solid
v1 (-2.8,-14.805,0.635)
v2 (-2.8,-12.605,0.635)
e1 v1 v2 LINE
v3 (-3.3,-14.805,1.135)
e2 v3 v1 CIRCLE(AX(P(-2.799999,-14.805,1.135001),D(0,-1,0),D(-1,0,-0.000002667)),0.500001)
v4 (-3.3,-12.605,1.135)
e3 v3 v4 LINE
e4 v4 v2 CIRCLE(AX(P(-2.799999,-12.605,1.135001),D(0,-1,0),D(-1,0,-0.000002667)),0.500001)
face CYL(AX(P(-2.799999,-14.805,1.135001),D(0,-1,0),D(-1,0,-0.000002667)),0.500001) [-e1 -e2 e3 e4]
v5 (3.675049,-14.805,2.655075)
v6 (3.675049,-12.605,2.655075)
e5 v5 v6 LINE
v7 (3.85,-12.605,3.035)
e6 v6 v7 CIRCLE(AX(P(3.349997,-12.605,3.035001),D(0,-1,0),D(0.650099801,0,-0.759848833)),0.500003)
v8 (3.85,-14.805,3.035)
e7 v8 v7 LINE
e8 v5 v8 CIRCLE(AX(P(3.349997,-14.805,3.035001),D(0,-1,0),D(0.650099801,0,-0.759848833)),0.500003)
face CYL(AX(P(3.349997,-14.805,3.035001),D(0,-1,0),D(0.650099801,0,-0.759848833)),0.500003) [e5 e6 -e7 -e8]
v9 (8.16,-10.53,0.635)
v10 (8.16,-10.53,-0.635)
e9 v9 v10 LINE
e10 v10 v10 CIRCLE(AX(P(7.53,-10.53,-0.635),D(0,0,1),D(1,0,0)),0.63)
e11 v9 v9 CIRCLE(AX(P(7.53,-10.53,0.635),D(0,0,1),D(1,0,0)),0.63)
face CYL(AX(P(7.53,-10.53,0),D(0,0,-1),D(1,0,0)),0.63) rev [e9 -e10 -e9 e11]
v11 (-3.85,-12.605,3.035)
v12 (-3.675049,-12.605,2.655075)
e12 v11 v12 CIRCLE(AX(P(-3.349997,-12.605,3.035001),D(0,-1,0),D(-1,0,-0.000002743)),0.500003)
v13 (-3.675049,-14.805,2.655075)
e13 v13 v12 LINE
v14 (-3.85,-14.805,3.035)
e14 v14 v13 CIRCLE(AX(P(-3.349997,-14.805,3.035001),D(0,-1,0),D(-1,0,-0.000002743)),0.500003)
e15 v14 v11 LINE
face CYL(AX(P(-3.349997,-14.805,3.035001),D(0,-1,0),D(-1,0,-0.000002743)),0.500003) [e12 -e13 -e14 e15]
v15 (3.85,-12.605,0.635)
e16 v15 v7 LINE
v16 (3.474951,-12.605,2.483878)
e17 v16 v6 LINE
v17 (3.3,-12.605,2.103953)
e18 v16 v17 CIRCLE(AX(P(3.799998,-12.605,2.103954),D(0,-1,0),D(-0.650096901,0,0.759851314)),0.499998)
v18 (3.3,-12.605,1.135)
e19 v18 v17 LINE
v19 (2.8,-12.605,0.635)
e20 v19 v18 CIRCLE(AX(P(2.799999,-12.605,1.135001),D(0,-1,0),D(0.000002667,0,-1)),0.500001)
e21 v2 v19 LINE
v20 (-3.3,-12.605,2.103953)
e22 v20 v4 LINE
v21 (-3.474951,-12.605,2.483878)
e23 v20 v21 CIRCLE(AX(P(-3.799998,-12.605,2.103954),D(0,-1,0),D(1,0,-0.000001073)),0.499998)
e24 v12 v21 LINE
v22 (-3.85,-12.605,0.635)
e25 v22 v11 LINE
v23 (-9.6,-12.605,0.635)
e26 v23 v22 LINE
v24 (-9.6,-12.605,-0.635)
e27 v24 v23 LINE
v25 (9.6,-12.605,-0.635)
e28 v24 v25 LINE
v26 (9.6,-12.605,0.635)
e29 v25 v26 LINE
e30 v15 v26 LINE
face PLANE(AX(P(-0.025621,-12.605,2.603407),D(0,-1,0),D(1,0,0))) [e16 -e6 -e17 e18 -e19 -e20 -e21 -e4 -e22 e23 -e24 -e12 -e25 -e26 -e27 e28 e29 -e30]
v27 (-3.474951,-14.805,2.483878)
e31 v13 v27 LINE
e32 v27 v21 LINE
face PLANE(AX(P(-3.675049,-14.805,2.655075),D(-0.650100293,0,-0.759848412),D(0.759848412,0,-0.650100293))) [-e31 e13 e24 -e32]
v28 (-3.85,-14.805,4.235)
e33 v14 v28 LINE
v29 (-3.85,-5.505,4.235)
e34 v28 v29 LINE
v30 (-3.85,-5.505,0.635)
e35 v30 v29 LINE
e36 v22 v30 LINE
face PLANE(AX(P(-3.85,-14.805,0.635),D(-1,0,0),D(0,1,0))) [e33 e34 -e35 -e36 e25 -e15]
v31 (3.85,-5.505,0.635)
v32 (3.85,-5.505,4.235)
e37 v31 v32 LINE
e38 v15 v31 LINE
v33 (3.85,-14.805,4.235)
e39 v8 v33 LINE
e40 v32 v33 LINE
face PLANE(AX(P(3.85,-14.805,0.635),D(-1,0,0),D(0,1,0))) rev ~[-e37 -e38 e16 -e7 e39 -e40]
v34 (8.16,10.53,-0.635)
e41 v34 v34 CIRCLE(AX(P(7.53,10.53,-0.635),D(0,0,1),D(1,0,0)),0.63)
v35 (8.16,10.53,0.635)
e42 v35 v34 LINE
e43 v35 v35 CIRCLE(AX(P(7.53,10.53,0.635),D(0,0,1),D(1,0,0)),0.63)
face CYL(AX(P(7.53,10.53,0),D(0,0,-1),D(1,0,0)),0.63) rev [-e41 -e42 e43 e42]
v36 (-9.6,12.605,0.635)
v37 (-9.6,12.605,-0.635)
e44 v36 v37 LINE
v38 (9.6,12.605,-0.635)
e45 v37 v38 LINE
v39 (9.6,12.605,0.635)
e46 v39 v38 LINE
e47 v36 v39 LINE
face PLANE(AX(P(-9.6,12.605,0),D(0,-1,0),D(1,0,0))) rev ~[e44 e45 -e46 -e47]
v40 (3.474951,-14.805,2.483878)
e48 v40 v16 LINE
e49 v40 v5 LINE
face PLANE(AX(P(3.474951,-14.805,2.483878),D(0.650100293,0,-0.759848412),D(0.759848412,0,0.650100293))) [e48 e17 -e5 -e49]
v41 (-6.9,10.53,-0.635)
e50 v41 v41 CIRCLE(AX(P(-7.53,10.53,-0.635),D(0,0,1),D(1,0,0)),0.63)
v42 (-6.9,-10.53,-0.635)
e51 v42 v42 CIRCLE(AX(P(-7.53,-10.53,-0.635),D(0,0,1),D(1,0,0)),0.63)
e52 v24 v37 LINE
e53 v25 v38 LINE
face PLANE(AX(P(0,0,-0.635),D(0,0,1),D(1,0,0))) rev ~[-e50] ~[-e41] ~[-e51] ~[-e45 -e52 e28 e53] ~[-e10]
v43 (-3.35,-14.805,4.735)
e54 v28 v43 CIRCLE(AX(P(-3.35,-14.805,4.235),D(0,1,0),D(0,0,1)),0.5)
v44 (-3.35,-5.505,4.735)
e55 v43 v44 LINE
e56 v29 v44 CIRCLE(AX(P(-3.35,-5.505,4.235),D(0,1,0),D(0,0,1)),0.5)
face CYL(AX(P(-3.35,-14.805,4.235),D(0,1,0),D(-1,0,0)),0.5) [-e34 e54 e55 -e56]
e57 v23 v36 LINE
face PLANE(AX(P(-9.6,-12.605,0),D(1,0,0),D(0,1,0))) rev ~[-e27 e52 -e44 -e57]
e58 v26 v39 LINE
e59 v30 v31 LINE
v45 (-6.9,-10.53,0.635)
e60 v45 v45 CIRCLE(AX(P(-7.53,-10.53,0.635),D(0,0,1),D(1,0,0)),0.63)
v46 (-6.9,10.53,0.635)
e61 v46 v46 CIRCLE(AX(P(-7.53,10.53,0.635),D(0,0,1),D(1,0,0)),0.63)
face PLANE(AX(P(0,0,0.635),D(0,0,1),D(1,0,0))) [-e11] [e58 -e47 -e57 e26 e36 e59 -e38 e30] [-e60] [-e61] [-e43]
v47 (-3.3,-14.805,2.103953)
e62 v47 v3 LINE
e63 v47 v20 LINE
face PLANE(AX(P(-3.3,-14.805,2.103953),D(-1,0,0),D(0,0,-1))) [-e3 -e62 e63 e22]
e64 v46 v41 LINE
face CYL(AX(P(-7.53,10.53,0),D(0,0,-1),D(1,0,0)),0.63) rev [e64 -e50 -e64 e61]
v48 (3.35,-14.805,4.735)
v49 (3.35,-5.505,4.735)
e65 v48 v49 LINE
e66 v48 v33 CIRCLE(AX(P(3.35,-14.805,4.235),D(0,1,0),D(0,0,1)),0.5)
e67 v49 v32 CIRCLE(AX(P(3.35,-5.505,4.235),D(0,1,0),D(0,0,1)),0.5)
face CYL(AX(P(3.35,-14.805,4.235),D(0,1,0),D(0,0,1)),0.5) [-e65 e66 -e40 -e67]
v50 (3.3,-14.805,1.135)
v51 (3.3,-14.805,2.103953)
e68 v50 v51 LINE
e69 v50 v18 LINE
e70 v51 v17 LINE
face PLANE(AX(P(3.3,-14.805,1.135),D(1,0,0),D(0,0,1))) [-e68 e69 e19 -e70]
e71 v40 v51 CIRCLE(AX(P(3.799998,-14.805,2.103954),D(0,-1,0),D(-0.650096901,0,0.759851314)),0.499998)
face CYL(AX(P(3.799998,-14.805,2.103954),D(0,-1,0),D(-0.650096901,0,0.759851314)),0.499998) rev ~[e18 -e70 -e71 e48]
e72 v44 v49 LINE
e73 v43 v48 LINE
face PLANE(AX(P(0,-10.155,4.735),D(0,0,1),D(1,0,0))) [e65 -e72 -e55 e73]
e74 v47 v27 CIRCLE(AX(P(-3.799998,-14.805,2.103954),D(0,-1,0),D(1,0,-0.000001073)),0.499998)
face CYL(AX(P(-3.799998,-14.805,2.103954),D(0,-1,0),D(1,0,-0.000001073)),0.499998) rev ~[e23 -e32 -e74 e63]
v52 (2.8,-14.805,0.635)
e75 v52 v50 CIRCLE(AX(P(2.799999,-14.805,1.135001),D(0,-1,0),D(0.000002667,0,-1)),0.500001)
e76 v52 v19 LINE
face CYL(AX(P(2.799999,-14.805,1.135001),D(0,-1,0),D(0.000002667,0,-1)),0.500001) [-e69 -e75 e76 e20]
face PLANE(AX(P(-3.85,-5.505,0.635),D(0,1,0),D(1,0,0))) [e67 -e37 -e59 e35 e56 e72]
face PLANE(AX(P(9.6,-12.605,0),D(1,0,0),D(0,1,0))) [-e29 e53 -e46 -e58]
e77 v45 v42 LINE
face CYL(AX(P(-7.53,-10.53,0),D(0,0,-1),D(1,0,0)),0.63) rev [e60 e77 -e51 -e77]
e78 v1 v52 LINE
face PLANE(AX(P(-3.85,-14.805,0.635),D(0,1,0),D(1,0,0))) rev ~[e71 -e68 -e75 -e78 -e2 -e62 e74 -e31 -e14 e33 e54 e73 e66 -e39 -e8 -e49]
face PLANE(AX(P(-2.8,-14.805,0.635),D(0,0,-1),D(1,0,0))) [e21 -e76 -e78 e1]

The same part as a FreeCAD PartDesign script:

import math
import FreeCAD as App
import Part
import Sketcher
from FreeCAD import Vector
Q = App.Units.Quantity


def edges_at(feature, points):
    """Names of the edges that pass closest to the given points."""
    edges = feature.Shape.Edges
    near = lambda p: min(range(len(edges)), key=lambda i: edges[i].distToShape(Part.Vertex(*p))[0])
    return sorted({f"Edge{near(p) + 1}" for p in points})


def add_polygon(sketch, points):
    """Adds a closed chain of lines whose ends are joined by coincident constraints."""
    first, n = sketch.GeometryCount, len(points)
    for a, b in zip(points, points[1:] + points[:1]):
        sketch.addGeometry(Part.LineSegment(App.Vector(*a, 0), App.Vector(*b, 0)), False)
    for i in range(n):
        sketch.addConstraint(Sketcher.Constraint("Coincident", first + i, 2, first + (i + 1) % n, 1))

doc = App.newDocument("Part")
params = doc.addObject("Spreadsheet::Sheet", "Params")
for row, (alias, value) in enumerate([
    ("sketch1_diameter", "1.26 mm"),
    ("sketch1_width", "19.2 mm"),
    ("sketch1_height", "25.21 mm"),
    ("pad1_length", "1.27 mm"),
    ("sketch2_width", "7.7 mm"),
    ("sketch2_height", "9.3 mm"),
    ("pad2_length", "4.1 mm"),
    ("fillet_radius", "0.5 mm"),
    ("sketch3_radius", "0.499998 mm"),
    ("sketch3_radius2", "0.500001 mm"),
    ("sketch3_width", "7.7 mm"),
    ("sketch3_width2", "5.6 mm"),
    ("sketch3_height", "1.7 mm"),
    ("pocket1_length", "2.2 mm"),
], start=1):
    params.set(f"A{row}", alias)
    params.set(f"B{row}", "=" + value)
    params.setAlias(f"B{row}", alias)

body = doc.addObject("PartDesign::Body", "Body")

# Sketch on XY plane
sketch1 = doc.addObject("Sketcher::SketchObject", "Sketch")
body.addObject(sketch1)
sketch1.AttachmentSupport = (doc.XY_Plane, [""])
sketch1.MapMode = "FlatFace"
add_polygon(sketch1, [(-9.6, 12.605), (-9.6, -12.605), (9.6, -12.605), (9.6, 12.605)])  # lines 0-3
sketch1.addGeometry(Part.Circle(Vector(-7.53, -10.53, 0), Vector(0, 0, 1), 0.63), False)  # 4
sketch1.addGeometry(Part.Circle(Vector(7.53, -10.53, 0), Vector(0, 0, 1), 0.63), False)  # 5
sketch1.addGeometry(Part.Circle(Vector(-7.53, 10.53, 0), Vector(0, 0, 1), 0.63), False)  # 6
sketch1.addGeometry(Part.Circle(Vector(7.53, 10.53, 0), Vector(0, 0, 1), 0.63), False)  # 7
sketch1.addConstraint([
    Sketcher.Constraint("Vertical", 0),
    Sketcher.Constraint("Horizontal", 1),
    Sketcher.Constraint("Vertical", 2),
    Sketcher.Constraint("Horizontal", 3),
    Sketcher.Constraint("Equal", 4, 5),
    Sketcher.Constraint("Equal", 5, 6),
    Sketcher.Constraint("Equal", 6, 7),
    Sketcher.Constraint("Symmetric", 5, 3, 6, 3, -1, 1),
    Sketcher.Constraint("Symmetric", 4, 3, 7, 3, -1, 1),
    Sketcher.Constraint("Symmetric", 0, 2, 2, 2, -1, 1),
    Sketcher.Constraint("Symmetric", 4, 3, 5, 3, -2),
    Sketcher.Constraint("Diameter", 4, Q("1.26 mm")),
    Sketcher.Constraint("DistanceX", 1, 1, 1, 2, Q("19.2 mm")),
    Sketcher.Constraint("DistanceY", 0, 2, 0, 1, Q("25.21 mm")),
    Sketcher.Constraint("DistanceX", 4, 3, -1, 1, Q("7.53 mm")),
    Sketcher.Constraint("DistanceY", 4, 3, -1, 1, Q("10.53 mm")),
])
sketch1.setExpression("Constraints[15]", "Params.sketch1_diameter")
sketch1.setExpression("Constraints[16]", "Params.sketch1_width")
sketch1.setExpression("Constraints[17]", "Params.sketch1_height")
pad1 = doc.addObject("PartDesign::Pad", "Pad")
body.addObject(pad1)
pad1.Profile = sketch1
pad1.setExpression("Length", "Params.pad1_length")
pad1.Midplane = True

# Sketch on XY plane
sketch2 = doc.addObject("Sketcher::SketchObject", "Sketch001")
body.addObject(sketch2)
sketch2.AttachmentSupport = (doc.XY_Plane, [""])
sketch2.MapMode = "FlatFace"
sketch2.AttachmentOffset = App.Placement(Vector(0, 0, 0.635), App.Rotation())
add_polygon(sketch2, [(-3.85, -5.505), (-3.85, -14.805), (3.85, -14.805), (3.85, -5.505)])  # lines 0-3
sketch2.addConstraint([
    Sketcher.Constraint("Vertical", 0),
    Sketcher.Constraint("Horizontal", 1),
    Sketcher.Constraint("Vertical", 2),
    Sketcher.Constraint("Horizontal", 3),
    Sketcher.Constraint("DistanceX", 1, 1, 1, 2, Q("7.7 mm")),
    Sketcher.Constraint("DistanceY", 0, 2, 0, 1, Q("9.3 mm")),
    Sketcher.Constraint("DistanceX", 0, 2, -1, 1, Q("3.85 mm")),
    Sketcher.Constraint("DistanceY", 0, 2, -1, 1, Q("14.805 mm")),
])
sketch2.setExpression("Constraints[8]", "Params.sketch2_width")
sketch2.setExpression("Constraints[9]", "Params.sketch2_height")
pad2 = doc.addObject("PartDesign::Pad", "Pad001")
body.addObject(pad2)
pad2.Profile = sketch2
pad2.setExpression("Length", "Params.pad2_length")
doc.recompute()

fillet = doc.addObject("PartDesign::Fillet", "Fillet")
body.addObject(fillet)
fillet.Base = (pad2, edges_at(pad2, [(-3.85, -10.155, 4.735), (3.85, -10.155, 4.735)]))
fillet.setExpression("Radius", "Params.fillet_radius")

# Sketch on XZ plane
sketch3 = doc.addObject("Sketcher::SketchObject", "Sketch002")
body.addObject(sketch3)
sketch3.AttachmentSupport = (doc.XZ_Plane, [""])
sketch3.MapMode = "FlatFace"
sketch3.AttachmentOffset = App.Placement(Vector(0, 0, 14.805), App.Rotation())
add_polygon(sketch3, [(-4.301005, 4.990322), (-4.301005, 0.216493), (4.249764, 0.216493), (4.249764, 4.990322)])  # lines 0-3
sketch3.addGeometry(Part.LineSegment(Vector(-3.85, 3.035, 0), Vector(-3.85, 4.735, 0)), False)  # 4
sketch3.addGeometry(Part.LineSegment(Vector(-3.85, 4.735, 0), Vector(3.85, 4.735, 0)), False)  # 5
sketch3.addGeometry(Part.LineSegment(Vector(3.85, 4.735, 0), Vector(3.85, 3.035, 0)), False)  # 6
sketch3.addGeometry(Part.ArcOfCircle(Part.Circle(Vector(3.349997, 3.035001, 0), Vector(0, 0, 1), 0.500003), math.radians(-49.450873), math.radians(-0.000157)), False)  # 7
sketch3.addGeometry(Part.LineSegment(Vector(3.675049, 2.655075, 0), Vector(3.474951, 2.483878, 0)), False)  # 8
sketch3.addGeometry(Part.ArcOfCircle(Part.Circle(Vector(3.799998, 2.103954, 0), Vector(0, 0, 1), 0.499998), math.radians(130.548908), math.radians(180.000062)), False)  # 9
sketch3.addGeometry(Part.LineSegment(Vector(3.3, 2.103953, 0), Vector(3.3, 1.135, 0)), False)  # 10
sketch3.addGeometry(Part.ArcOfCircle(Part.Circle(Vector(2.799999, 1.135001, 0), Vector(0, 0, 1), 0.500001), math.radians(-89.999847), math.radians(-0.000153)), False)  # 11
sketch3.addGeometry(Part.LineSegment(Vector(2.8, 0.635, 0), Vector(-2.8, 0.635, 0)), False)  # 12
sketch3.addGeometry(Part.ArcOfCircle(Part.Circle(Vector(-2.799999, 1.135001, 0), Vector(0, 0, 1), 0.500001), math.radians(-179.999847), math.radians(-90.000153)), False)  # 13
sketch3.addGeometry(Part.LineSegment(Vector(-3.3, 1.135, 0), Vector(-3.3, 2.103953, 0)), False)  # 14
sketch3.addGeometry(Part.ArcOfCircle(Part.Circle(Vector(-3.799998, 2.103954, 0), Vector(0, 0, 1), 0.499998), math.radians(-0.000062), math.radians(49.451092)), False)  # 15
sketch3.addGeometry(Part.LineSegment(Vector(-3.474951, 2.483878, 0), Vector(-3.675049, 2.655075, 0)), False)  # 16
sketch3.addGeometry(Part.ArcOfCircle(Part.Circle(Vector(-3.349997, 3.035001, 0), Vector(0, 0, 1), 0.500003), math.radians(-179.999843), math.radians(-130.549127)), False)  # 17
sketch3.addConstraint([
    Sketcher.Constraint("Coincident", 4, 2, 5, 1),
    Sketcher.Constraint("Coincident", 5, 2, 6, 1),
    Sketcher.Constraint("Coincident", 6, 2, 7, 2),
    Sketcher.Constraint("Tangent", 7, 1, 8, 1),
    Sketcher.Constraint("Coincident", 8, 2, 9, 1),
    Sketcher.Constraint("Tangent", 9, 2, 10, 1),
    Sketcher.Constraint("Coincident", 10, 2, 11, 2),
    Sketcher.Constraint("Coincident", 11, 1, 12, 1),
    Sketcher.Constraint("Coincident", 12, 2, 13, 2),
    Sketcher.Constraint("Coincident", 13, 1, 14, 1),
    Sketcher.Constraint("Tangent", 14, 2, 15, 1),
    Sketcher.Constraint("Coincident", 15, 2, 16, 1),
    Sketcher.Constraint("Tangent", 16, 2, 17, 2),
    Sketcher.Constraint("Coincident", 17, 1, 4, 1),
    Sketcher.Constraint("Vertical", 0),
    Sketcher.Constraint("Horizontal", 1),
    Sketcher.Constraint("Vertical", 2),
    Sketcher.Constraint("Horizontal", 3),
    Sketcher.Constraint("Vertical", 4),
    Sketcher.Constraint("Horizontal", 5),
    Sketcher.Constraint("Vertical", 6),
    Sketcher.Constraint("Vertical", 10),
    Sketcher.Constraint("Horizontal", 12),
    Sketcher.Constraint("Vertical", 14),
    Sketcher.Constraint("Equal", 7, 11),
    Sketcher.Constraint("Equal", 11, 13),
    Sketcher.Constraint("Equal", 9, 15),
    Sketcher.Constraint("Equal", 13, 17),
    Sketcher.Constraint("Symmetric", 9, 3, 15, 3, -2),
    Sketcher.Constraint("Symmetric", 7, 3, 17, 3, -2),
    Sketcher.Constraint("Horizontal", 17, 3, 6, 2),
    Sketcher.Constraint("Horizontal", 13, 3, 10, 2),
    Sketcher.Constraint("Horizontal", 10, 2, 13, 1),
    Sketcher.Constraint("Horizontal", 8, 2, 15, 2),
    Sketcher.Constraint("Horizontal", 6, 2, 17, 1),
    Sketcher.Constraint("Vertical", 13, 3, 12, 2),
    Sketcher.Constraint("Radius", 9, Q("0.499998 mm")),
    Sketcher.Constraint("Radius", 11, Q("0.500001 mm")),
    Sketcher.Constraint("DistanceX", 5, 1, 5, 2, Q("7.7 mm")),
    Sketcher.Constraint("DistanceX", 12, 2, 12, 1, Q("5.6 mm")),
    Sketcher.Constraint("DistanceY", 4, 1, 4, 2, Q("1.7 mm")),
    Sketcher.Constraint("DistanceX", 11, 1, 9, 3, Q("0.999998 mm")),
    Sketcher.Constraint("DistanceY", 11, 3, 7, 3, Q("1.9 mm")),
    Sketcher.Constraint("DistanceY", -1, 1, 7, 3, Q("3.035001 mm")),
    Sketcher.Constraint("DistanceX", 1, 1, 1, 2, Q("8.550769 mm")),
    Sketcher.Constraint("DistanceY", 0, 2, 0, 1, Q("4.773829 mm")),
    Sketcher.Constraint("DistanceX", 16, 2, 15, 2, Q("0.200098 mm")),
    Sketcher.Constraint("Distance", 8, Q("0.263339 mm")),
    Sketcher.Constraint("DistanceY", -1, 1, 2, 2, Q("4.990322 mm")),
    Sketcher.Constraint("DistanceX", 0, 2, 17, 3, Q("0.951008 mm")),
])
sketch3.setExpression("Constraints[40]", "Params.sketch3_radius")
sketch3.setExpression("Constraints[41]", "Params.sketch3_radius2")
sketch3.setExpression("Constraints[42]", "Params.sketch3_width")
sketch3.setExpression("Constraints[43]", "Params.sketch3_width2")
sketch3.setExpression("Constraints[44]", "Params.sketch3_height")
pocket1 = doc.addObject("PartDesign::Pocket", "Pocket")
body.addObject(pocket1)
pocket1.Profile = sketch3
pocket1.setExpression("Length", "Params.pocket1_length")

doc.recompute()
